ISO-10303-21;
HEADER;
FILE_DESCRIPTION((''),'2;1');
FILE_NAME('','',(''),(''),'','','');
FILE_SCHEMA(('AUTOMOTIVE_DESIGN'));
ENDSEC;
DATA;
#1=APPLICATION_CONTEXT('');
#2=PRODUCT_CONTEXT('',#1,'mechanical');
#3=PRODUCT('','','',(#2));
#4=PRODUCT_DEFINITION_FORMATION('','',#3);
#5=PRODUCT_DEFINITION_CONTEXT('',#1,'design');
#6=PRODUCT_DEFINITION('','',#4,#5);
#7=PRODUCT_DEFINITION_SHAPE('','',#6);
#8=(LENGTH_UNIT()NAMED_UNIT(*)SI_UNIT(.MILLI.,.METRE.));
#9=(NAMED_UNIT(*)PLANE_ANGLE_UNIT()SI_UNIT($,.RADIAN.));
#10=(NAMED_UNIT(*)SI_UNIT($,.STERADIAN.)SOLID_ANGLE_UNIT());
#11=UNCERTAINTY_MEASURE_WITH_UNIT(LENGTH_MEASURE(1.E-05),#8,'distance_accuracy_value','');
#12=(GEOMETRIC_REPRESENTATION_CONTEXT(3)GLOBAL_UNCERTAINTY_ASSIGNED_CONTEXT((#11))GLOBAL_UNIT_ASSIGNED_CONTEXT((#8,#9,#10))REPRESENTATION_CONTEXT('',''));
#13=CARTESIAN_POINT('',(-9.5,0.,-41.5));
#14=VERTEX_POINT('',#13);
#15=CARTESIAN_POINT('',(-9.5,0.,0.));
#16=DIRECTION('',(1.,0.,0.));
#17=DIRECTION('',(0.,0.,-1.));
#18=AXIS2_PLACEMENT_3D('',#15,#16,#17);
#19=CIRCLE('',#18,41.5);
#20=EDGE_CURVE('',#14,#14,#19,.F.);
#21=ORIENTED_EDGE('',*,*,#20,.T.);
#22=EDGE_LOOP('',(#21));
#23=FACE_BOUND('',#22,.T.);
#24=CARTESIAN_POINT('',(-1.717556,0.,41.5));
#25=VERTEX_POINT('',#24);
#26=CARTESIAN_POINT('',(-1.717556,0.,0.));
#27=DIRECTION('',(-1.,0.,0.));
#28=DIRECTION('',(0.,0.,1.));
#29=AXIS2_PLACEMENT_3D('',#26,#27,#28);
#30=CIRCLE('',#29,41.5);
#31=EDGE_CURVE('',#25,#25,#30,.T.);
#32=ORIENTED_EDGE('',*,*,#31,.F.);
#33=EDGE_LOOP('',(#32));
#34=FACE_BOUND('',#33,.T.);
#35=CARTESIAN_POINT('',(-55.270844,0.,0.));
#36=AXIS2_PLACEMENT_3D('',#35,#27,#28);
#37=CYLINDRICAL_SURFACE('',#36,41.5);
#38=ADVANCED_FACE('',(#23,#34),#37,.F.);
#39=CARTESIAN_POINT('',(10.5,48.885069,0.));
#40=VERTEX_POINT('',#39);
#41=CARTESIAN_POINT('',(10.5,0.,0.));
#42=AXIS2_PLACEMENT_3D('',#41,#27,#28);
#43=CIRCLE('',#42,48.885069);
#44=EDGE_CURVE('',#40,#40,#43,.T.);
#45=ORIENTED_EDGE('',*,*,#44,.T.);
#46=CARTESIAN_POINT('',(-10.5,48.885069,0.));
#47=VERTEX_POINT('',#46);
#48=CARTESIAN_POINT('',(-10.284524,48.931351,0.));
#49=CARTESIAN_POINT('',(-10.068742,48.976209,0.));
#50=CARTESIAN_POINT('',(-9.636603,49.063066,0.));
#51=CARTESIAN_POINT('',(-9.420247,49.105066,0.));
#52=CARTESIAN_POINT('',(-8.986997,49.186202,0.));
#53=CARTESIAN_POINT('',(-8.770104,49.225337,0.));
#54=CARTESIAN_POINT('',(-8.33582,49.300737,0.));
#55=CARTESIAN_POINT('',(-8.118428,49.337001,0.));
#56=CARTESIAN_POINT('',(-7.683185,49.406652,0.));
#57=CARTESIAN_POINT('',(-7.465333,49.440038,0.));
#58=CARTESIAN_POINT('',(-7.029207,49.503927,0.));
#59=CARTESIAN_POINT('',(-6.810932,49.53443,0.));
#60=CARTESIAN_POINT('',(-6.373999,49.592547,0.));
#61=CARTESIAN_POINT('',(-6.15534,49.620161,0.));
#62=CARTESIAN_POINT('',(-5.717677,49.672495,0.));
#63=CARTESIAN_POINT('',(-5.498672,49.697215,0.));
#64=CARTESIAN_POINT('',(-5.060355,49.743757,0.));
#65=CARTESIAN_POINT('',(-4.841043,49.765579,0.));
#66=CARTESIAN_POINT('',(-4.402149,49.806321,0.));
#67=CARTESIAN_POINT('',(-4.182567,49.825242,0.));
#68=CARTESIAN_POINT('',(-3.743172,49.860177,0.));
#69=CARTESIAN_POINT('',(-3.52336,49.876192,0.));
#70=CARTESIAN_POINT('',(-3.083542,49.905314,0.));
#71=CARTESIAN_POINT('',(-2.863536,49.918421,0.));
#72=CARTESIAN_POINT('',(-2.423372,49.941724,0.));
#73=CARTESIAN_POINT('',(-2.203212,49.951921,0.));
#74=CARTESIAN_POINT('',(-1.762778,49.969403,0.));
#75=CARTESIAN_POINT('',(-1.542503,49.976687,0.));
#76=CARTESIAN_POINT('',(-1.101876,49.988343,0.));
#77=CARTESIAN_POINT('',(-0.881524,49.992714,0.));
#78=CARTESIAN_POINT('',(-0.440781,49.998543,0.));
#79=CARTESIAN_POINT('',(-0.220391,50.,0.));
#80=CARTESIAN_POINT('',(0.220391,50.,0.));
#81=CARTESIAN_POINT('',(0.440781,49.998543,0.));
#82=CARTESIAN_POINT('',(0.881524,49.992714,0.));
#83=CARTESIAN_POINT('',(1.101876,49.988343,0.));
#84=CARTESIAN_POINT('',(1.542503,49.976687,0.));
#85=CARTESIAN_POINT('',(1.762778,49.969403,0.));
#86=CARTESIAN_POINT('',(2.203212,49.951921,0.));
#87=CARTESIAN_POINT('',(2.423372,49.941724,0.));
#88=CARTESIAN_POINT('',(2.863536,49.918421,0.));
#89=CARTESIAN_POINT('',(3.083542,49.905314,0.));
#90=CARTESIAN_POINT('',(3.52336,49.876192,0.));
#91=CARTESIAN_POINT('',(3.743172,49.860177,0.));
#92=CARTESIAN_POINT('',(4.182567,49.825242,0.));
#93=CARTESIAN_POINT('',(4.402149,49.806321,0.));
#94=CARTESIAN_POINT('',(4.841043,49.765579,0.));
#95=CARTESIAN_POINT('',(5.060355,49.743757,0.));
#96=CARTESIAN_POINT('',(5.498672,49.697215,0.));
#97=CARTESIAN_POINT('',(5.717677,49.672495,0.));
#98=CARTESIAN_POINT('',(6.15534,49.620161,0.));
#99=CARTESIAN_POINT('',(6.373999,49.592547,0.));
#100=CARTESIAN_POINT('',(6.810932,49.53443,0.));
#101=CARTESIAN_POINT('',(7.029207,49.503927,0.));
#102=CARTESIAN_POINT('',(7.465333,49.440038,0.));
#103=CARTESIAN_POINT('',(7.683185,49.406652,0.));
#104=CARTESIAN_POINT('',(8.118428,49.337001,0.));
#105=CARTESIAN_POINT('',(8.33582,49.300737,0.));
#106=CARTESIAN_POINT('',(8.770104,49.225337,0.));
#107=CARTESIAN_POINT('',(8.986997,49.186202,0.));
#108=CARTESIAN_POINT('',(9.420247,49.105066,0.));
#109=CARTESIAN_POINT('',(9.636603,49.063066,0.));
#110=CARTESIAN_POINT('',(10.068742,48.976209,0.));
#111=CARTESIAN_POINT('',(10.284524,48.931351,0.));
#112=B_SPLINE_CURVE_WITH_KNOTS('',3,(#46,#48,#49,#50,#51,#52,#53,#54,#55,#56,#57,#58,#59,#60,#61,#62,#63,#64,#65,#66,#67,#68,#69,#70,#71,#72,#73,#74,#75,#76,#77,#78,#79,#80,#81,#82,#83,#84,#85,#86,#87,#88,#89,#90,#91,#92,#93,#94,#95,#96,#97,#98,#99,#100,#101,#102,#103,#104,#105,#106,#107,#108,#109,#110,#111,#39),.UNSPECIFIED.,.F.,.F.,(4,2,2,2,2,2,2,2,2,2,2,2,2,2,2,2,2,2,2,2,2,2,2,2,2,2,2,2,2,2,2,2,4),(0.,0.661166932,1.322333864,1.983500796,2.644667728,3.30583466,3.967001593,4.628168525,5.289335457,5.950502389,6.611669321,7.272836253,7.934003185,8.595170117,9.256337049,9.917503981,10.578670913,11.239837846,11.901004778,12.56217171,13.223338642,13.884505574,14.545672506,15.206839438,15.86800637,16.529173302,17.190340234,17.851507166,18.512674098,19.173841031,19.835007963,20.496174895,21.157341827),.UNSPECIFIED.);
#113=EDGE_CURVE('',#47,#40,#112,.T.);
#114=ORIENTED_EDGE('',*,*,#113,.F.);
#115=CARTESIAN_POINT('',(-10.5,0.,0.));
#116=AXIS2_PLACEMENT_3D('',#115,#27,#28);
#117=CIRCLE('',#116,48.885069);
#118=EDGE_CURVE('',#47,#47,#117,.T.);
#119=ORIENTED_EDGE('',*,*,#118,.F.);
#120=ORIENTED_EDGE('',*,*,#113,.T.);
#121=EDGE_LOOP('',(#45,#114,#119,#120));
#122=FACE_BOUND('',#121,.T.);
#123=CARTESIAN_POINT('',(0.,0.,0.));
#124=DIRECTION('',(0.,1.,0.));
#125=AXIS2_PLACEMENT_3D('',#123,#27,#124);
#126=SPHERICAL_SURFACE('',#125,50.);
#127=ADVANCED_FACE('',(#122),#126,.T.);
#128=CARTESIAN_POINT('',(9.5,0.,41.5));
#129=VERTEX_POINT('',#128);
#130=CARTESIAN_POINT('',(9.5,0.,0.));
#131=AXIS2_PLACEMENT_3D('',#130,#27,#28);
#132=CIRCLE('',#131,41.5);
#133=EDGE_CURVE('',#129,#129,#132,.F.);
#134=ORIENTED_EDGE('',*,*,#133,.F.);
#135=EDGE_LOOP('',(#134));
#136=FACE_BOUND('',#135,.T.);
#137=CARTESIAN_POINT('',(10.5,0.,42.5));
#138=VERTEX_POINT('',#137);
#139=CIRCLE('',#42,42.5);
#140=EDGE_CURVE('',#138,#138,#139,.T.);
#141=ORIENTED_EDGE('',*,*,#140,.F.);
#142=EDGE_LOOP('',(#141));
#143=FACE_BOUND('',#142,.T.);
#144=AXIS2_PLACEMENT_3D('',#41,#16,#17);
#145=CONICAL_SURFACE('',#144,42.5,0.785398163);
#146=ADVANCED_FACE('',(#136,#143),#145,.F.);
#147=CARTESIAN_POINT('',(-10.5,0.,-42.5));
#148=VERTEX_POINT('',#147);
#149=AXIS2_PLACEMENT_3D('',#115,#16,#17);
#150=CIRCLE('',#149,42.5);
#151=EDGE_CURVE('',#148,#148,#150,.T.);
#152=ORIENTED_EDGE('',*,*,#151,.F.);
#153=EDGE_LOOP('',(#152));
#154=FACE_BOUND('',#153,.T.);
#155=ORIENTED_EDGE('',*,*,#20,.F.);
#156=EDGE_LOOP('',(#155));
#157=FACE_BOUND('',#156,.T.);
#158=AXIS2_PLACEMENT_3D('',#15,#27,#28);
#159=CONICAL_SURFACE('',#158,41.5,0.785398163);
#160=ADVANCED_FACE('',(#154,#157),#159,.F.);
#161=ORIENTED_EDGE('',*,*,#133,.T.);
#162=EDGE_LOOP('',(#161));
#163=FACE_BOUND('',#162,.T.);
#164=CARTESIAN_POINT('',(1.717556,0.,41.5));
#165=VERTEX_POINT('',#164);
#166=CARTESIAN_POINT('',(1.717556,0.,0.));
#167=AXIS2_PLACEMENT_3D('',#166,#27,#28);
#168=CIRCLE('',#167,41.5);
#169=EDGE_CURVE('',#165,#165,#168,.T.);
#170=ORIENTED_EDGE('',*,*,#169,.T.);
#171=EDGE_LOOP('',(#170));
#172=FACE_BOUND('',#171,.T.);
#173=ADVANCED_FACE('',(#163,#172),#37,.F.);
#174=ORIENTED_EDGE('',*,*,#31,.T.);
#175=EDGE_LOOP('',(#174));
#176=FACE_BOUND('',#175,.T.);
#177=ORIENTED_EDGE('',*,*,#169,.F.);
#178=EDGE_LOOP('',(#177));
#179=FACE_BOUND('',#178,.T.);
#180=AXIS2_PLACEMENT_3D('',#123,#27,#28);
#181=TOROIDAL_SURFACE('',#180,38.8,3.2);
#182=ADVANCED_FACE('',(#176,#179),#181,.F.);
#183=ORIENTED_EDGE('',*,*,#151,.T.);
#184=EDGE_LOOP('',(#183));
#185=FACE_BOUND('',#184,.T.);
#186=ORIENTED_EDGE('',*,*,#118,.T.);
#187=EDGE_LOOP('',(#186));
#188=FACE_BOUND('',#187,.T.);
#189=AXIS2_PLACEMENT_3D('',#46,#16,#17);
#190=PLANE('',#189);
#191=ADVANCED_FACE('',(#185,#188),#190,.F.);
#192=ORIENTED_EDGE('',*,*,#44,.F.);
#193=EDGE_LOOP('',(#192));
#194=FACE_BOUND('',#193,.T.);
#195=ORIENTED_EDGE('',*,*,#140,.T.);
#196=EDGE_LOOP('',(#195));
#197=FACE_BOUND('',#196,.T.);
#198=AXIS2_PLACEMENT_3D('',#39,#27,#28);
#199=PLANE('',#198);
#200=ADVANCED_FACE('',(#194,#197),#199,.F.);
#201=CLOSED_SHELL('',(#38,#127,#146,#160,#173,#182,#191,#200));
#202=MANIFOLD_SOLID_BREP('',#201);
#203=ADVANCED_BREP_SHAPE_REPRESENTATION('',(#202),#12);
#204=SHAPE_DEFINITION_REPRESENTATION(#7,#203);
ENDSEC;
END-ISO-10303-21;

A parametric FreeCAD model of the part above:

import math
import FreeCAD as App
import Part
import Sketcher


def edges_at(feature, points):
    """Names of the edges that pass closest to the given points."""
    edges = feature.Shape.Edges
    near = lambda p: min(range(len(edges)), key=lambda i: edges[i].distToShape(Part.Vertex(*p))[0])
    return sorted({f"Edge{near(p) + 1}" for p in points})

doc = App.newDocument("Part")
body = doc.addObject("PartDesign::Body", "Body")

sketch1 = body.newObject("Sketcher::SketchObject", "Sketch")
sketch1.AttachmentSupport = (doc.getObject("XY_Plane"), [""])
sketch1.MapMode = "FlatFace"
sketch1.addGeometry([
    Part.LineSegment(App.Vector(-10.5, 41.5, 0), App.Vector(-1.717556, 41.5, 0)),
    Part.ArcOfCircle(Part.Circle(App.Vector(0, 38.8, 0), App.Vector(0, 0, 1), 3.2), math.radians(57.538255), math.radians(122.461745)),
    Part.LineSegment(App.Vector(1.717556, 41.5, 0), App.Vector(10.5, 41.5, 0)),
    Part.LineSegment(App.Vector(10.5, 41.5, 0), App.Vector(10.5, 48.885069, 0)),
    Part.ArcOfCircle(Part.Circle(App.Vector(0, 0, 0), App.Vector(0, 0, 1), 50), math.radians(77.877648), math.radians(102.122352)),
    Part.LineSegment(App.Vector(-10.5, 48.885069, 0), App.Vector(-10.5, 41.5, 0)),
], False)
sketch1.addConstraint([
    Sketcher.Constraint("Coincident", 0, 2, 1, 2),
    Sketcher.Constraint("Coincident", 1, 1, 2, 1),
    Sketcher.Constraint("Coincident", 2, 2, 3, 1),
    Sketcher.Constraint("Coincident", 3, 2, 4, 1),
    Sketcher.Constraint("Coincident", 4, 2, 5, 1),
    Sketcher.Constraint("Coincident", 5, 2, 0, 1),
    Sketcher.Constraint("Horizontal", 0),
    Sketcher.Constraint("Horizontal", 2),
    Sketcher.Constraint("Vertical", 3),
    Sketcher.Constraint("Vertical", 5),
    Sketcher.Constraint("Coincident", 4, 3, -1, 1),
    Sketcher.Constraint("Symmetric", 0, 2, 1, 1, -2),
    Sketcher.Constraint("Horizontal", 3, 2, 4, 2),
    Sketcher.Constraint("Radius", 4, 50.0),
    Sketcher.Constraint("Radius", 1, 3.2),
    Sketcher.Constraint("DistanceX", 4, 2, 3, 2, 21.0),
    Sketcher.Constraint("DistanceY", -1, 1, 1, 3, 38.8),
    Sketcher.Constraint("DistanceY", -1, 1, 0, 2, 41.5),
])
revolution = body.newObject("PartDesign::Revolution", "Revolution")
revolution.Profile = sketch1
revolution.ReferenceAxis = (sketch1, ["H_Axis"])
revolution.Angle = 360
doc.recompute()

chamfer = body.newObject("PartDesign::Chamfer", "Chamfer")
chamfer.Base = (revolution, edges_at(revolution, [(10.5, 0, -41.5), (-10.5, 0, -41.5)]))
chamfer.Size = 1

doc.recompute()
